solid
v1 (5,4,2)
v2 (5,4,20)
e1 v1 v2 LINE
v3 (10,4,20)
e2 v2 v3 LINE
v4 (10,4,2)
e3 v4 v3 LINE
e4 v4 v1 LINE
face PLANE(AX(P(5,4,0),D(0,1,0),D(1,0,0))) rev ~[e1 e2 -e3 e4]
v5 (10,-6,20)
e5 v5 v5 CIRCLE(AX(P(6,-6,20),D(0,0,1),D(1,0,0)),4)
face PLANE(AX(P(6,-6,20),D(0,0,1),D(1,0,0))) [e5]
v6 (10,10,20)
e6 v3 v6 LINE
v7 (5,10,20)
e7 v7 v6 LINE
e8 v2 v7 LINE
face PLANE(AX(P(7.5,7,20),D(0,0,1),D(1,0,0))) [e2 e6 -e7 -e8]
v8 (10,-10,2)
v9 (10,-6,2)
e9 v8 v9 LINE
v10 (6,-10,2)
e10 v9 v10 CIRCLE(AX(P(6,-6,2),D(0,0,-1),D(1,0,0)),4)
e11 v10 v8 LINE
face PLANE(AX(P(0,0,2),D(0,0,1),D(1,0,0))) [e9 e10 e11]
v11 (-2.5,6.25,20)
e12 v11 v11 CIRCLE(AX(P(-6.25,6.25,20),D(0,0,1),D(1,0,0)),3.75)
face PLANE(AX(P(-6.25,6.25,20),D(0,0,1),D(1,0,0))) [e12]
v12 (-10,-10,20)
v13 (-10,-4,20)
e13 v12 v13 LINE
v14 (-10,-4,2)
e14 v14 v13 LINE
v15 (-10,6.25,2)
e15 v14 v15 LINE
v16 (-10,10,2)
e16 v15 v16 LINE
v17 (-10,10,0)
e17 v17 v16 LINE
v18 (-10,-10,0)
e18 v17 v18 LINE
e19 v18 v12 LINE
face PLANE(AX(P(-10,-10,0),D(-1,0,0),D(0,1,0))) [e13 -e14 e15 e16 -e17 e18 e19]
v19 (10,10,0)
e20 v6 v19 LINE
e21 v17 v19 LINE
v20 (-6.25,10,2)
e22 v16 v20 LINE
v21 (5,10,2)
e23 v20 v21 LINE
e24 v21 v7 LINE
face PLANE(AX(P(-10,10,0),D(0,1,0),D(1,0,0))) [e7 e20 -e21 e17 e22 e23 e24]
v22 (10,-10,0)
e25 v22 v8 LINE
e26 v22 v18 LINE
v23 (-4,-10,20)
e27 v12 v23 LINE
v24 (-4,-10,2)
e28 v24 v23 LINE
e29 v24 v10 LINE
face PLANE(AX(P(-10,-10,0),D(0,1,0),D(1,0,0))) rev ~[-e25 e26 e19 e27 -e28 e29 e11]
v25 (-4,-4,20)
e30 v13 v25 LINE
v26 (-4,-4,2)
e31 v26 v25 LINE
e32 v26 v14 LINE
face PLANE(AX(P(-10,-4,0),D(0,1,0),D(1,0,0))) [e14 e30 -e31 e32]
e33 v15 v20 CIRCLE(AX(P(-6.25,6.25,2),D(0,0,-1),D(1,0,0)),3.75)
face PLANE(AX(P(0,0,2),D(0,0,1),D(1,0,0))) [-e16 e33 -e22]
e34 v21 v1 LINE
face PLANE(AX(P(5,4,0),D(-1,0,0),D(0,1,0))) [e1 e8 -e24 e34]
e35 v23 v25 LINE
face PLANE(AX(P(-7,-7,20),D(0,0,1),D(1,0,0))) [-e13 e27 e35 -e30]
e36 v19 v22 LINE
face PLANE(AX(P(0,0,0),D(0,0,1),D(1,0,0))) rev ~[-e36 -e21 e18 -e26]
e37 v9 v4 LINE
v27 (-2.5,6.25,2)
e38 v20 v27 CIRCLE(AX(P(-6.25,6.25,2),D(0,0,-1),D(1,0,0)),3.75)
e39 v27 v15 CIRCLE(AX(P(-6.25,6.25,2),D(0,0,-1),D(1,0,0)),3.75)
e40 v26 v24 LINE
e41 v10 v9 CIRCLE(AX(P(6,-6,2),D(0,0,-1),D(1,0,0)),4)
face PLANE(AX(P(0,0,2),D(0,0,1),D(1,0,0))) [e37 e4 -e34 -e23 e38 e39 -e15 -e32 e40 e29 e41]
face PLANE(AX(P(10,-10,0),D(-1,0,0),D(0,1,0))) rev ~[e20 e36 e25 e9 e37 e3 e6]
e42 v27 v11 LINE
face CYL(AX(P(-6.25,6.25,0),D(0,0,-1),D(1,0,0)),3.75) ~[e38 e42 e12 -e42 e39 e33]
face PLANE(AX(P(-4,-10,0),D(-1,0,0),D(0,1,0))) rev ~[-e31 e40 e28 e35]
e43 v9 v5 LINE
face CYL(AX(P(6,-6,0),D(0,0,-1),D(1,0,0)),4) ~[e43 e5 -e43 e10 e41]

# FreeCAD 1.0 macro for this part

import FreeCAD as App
import Part
import Sketcher

V = App.Vector

doc = App.newDocument("Part")
body = doc.addObject("PartDesign::Body", "Body")

sketch1 = doc.addObject("Sketcher::SketchObject", "Sketch")
body.addObject(sketch1)
sketch1.AttachmentSupport = (doc.XY_Plane, [""])
sketch1.MapMode = "FlatFace"
sketch1.addGeometry([
    Part.LineSegment(V(-10, 10, 0), V(-10, -10, 0)),
    Part.LineSegment(V(-10, -10, 0), V(10, -10, 0)),
    Part.LineSegment(V(10, -10, 0), V(10, 10, 0)),
    Part.LineSegment(V(10, 10, 0), V(-10, 10, 0)),
], False)
sketch1.addConstraint([
    Sketcher.Constraint("Coincident", 0, 2, 1, 1),
    Sketcher.Constraint("Coincident", 1, 2, 2, 1),
    Sketcher.Constraint("Coincident", 2, 2, 3, 1),
    Sketcher.Constraint("Coincident", 3, 2, 0, 1),
    Sketcher.Constraint("Vertical", 0),
    Sketcher.Constraint("Horizontal", 1),
    Sketcher.Constraint("Vertical", 2),
    Sketcher.Constraint("Horizontal", 3),
    Sketcher.Constraint("Symmetric", 0, 2, 2, 2, -1, 1),
    Sketcher.Constraint("Equal", 3, 0),
    Sketcher.Constraint("DistanceX", 1, 1, 1, 2, 20.0),
])
pad1 = doc.addObject("PartDesign::Pad", "Pad")
body.addObject(pad1)
pad1.Profile = sketch1
pad1.Length = 2

sketch2 = doc.addObject("Sketcher::SketchObject", "Sketch001")
body.addObject(sketch2)
sketch2.AttachmentSupport = (doc.XY_Plane, [""])
sketch2.MapMode = "FlatFace"
sketch2.addGeometry([
    Part.LineSegment(V(-10, -4, 0), V(-10, -10, 0)),
    Part.LineSegment(V(-10, -10, 0), V(-4, -10, 0)),
    Part.LineSegment(V(-4, -10, 0), V(-4, -4, 0)),
    Part.LineSegment(V(-4, -4, 0), V(-10, -4, 0)),
    Part.Circle(V(-6.2, 6.2, 0), V(0, 0, 1), 3.8),
    Part.Circle(V(6, -6, 0), V(0, 0, 1), 4),
    Part.LineSegment(V(5, 10, 0), V(5, 4, 0)),
    Part.LineSegment(V(5, 4, 0), V(10, 4, 0)),
    Part.LineSegment(V(10, 4, 0), V(10, 10, 0)),
    Part.LineSegment(V(10, 10, 0), V(5, 10, 0)),
], False)
sketch2.addConstraint([
    Sketcher.Constraint("Coincident", 0, 2, 1, 1),
    Sketcher.Constraint("Coincident", 1, 2, 2, 1),
    Sketcher.Constraint("Coincident", 2, 2, 3, 1),
    Sketcher.Constraint("Coincident", 3, 2, 0, 1),
    Sketcher.Constraint("Coincident", 6, 2, 7, 1),
    Sketcher.Constraint("Coincident", 7, 2, 8, 1),
    Sketcher.Constraint("Coincident", 8, 2, 9, 1),
    Sketcher.Constraint("Coincident", 9, 2, 6, 1),
    Sketcher.Constraint("Vertical", 0),
    Sketcher.Constraint("Horizontal", 1),
    Sketcher.Constraint("Vertical", 2),
    Sketcher.Constraint("Horizontal", 3),
    Sketcher.Constraint("Vertical", 6),
    Sketcher.Constraint("Horizontal", 7),
    Sketcher.Constraint("Vertical", 8),
    Sketcher.Constraint("Horizontal", 9),
    Sketcher.Constraint("Symmetric", 3, 2, 7, 2, -1, 1),
    Sketcher.Constraint("Equal", 3, 0),
    Sketcher.Constraint("Equal", 2, 6),
    Sketcher.Constraint("Diameter", 5, 8.0),
    Sketcher.Constraint("Diameter", 4, 7.5),
    Sketcher.Constraint("DistanceX", 1, 1, 1, 2, 6.0),
    Sketcher.Constraint("DistanceX", 7, 1, 7, 2, 5.0),
    Sketcher.Constraint("DistanceX", -1, 1, 5, 3, 6.0),
    Sketcher.Constraint("DistanceY", 5, 3, -1, 1, 6.0),
    Sketcher.Constraint("DistanceX", 0, 2, -1, 1, 10.0),
    Sketcher.Constraint("DistanceY", 0, 2, -1, 1, 10.0),
    Sketcher.Constraint("DistanceX", 4, 3, -1, 1, 6.25),
    Sketcher.Constraint("DistanceY", -1, 1, 4, 3, 6.25),
])
pad2 = doc.addObject("PartDesign::Pad", "Pad001")
body.addObject(pad2)
pad2.Profile = sketch2
pad2.Length = 20

doc.recompute()
